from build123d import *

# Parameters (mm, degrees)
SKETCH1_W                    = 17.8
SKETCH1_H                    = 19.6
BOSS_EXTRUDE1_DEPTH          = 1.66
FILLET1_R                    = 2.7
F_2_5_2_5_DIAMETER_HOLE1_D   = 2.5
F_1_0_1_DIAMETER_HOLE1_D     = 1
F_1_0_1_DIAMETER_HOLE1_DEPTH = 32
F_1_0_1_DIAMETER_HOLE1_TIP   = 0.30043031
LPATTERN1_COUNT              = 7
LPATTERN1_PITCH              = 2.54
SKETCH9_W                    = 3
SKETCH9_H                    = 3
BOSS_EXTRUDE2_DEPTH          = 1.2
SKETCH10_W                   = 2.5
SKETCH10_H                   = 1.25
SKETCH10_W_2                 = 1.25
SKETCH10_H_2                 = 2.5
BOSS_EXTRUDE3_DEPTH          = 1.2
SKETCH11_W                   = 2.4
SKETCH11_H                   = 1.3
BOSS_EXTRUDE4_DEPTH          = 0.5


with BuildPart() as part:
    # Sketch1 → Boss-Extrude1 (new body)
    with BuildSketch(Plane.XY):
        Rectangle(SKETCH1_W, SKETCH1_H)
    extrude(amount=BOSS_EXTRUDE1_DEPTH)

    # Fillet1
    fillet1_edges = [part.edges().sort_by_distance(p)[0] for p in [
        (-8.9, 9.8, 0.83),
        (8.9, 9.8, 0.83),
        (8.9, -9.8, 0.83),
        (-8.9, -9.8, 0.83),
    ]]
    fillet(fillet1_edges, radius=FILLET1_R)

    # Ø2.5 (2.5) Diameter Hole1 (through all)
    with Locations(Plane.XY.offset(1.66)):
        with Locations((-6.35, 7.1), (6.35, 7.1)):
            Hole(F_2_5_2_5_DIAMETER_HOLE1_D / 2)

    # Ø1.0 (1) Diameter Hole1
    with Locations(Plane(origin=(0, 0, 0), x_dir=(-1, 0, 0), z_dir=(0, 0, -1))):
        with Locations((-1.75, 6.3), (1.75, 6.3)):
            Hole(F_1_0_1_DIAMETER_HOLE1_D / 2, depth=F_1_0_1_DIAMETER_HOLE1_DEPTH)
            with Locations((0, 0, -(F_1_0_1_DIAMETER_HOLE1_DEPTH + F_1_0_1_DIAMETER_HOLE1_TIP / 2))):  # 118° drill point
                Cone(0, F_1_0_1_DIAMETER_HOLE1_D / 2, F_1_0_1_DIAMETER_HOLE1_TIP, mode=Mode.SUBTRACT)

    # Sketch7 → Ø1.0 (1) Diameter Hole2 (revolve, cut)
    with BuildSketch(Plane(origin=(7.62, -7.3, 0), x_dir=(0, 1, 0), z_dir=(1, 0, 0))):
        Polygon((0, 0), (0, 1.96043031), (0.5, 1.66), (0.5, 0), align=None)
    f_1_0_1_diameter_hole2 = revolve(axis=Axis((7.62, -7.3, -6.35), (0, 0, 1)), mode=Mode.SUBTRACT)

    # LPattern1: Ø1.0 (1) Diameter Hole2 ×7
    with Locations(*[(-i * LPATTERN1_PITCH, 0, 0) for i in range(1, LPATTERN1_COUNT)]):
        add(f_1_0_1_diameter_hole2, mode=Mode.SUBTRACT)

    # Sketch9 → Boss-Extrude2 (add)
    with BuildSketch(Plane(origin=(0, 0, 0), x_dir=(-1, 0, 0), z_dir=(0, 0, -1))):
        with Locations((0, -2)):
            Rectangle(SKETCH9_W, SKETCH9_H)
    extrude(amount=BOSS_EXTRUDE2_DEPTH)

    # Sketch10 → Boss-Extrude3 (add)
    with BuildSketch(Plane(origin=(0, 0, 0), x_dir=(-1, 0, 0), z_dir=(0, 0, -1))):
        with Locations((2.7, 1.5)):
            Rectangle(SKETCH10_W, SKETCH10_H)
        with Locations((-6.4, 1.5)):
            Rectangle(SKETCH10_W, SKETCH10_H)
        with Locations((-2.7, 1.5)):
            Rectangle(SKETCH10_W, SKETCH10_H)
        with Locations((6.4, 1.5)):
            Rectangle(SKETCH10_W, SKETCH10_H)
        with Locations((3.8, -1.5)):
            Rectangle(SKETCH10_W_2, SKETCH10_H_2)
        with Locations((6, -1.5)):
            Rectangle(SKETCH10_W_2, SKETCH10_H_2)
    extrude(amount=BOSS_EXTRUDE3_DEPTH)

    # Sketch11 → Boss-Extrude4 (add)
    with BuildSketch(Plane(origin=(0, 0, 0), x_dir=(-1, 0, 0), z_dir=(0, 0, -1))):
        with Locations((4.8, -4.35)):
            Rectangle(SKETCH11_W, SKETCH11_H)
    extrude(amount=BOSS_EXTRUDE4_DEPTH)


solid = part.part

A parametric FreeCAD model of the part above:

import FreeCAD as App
import Part
import Sketcher
Q = App.Units.Quantity


def edges_at(feature, points):
    """Names of the edges that pass closest to the given points."""
    edges = feature.Shape.Edges
    near = lambda p: min(range(len(edges)), key=lambda i: edges[i].distToShape(Part.Vertex(*p))[0])
    return sorted({f"Edge{near(p) + 1}" for p in points})


def add_polygon(sketch, points):
    """Adds a closed chain of lines whose ends are joined by coincident constraints."""
    first, n = sketch.GeometryCount, len(points)
    for a, b in zip(points, points[1:] + points[:1]):
        sketch.addGeometry(Part.LineSegment(App.Vector(*a, 0), App.Vector(*b, 0)), False)
    for i in range(n):
        sketch.addConstraint(Sketcher.Constraint("Coincident", first + i, 2, first + (i + 1) % n, 1))

doc = App.newDocument("Part")
params = doc.addObject("Spreadsheet::Sheet", "Params")
for row, (alias, value) in enumerate([
    ("sketch1_width", "17.8 mm"),
    ("sketch1_height", "19.6 mm"),
    ("pad1_length", "1.66 mm"),
    ("fillet_radius", "2.7 mm"),
    ("sketch2_diameter", "2.5 mm"),
    ("hole_diameter", "2.5 mm"),
    ("sketch3_diameter", "1 mm"),
    ("hole2_diameter", "1 mm"),
    ("hole2_depth", "32 mm"),
    ("sketch4_width", "0.5 mm"),
    ("sketch4_height", "1.66 mm"),
    ("groove_angle", "360 deg"),
    ("linearpattern_pitch", "2.54 mm"),
    ("sketch5_width", "3 mm"),
    ("pad2_length", "1.2 mm"),
    ("sketch6_width", "2.5 mm"),
    ("sketch6_width2", "1.25 mm"),
    ("pad3_length", "1.2 mm"),
    ("sketch7_width", "2.4 mm"),
    ("sketch7_height", "1.3 mm"),
    ("pad4_length", "0.5 mm"),
], start=1):
    params.set(f"A{row}", alias)
    params.set(f"B{row}", "=" + value)
    params.setAlias(f"B{row}", alias)

body = doc.addObject("PartDesign::Body", "Body")

# Sketch on XY plane
sketch1 = body.newObject("Sketcher::SketchObject", "Sketch")
sketch1.AttachmentSupport = (doc.getObject("XY_Plane"), [""])
sketch1.MapMode = "FlatFace"
add_polygon(sketch1, [(-9, 10), (-9, -10), (9, -10), (9, 10)])  # lines 0-3
sketch1.addConstraint(Sketcher.Constraint("Vertical", 0))
sketch1.addConstraint(Sketcher.Constraint("Horizontal", 1))
sketch1.addConstraint(Sketcher.Constraint("Vertical", 2))
sketch1.addConstraint(Sketcher.Constraint("Horizontal", 3))
sketch1.addConstraint(Sketcher.Constraint("Symmetric", 0, 2, 2, 2, -1, 1))
sketch1.addConstraint(Sketcher.Constraint("DistanceX", 1, 1, 1, 2, Q("17.8 mm")))
sketch1.addConstraint(Sketcher.Constraint("DistanceY", 0, 2, 0, 1, Q("19.6 mm")))
sketch1.setExpression("Constraints[9]", "Params.sketch1_width")
sketch1.setExpression("Constraints[10]", "Params.sketch1_height")
pad1 = body.newObject("PartDesign::Pad", "Pad")
pad1.Profile = sketch1
pad1.setExpression("Length", "Params.pad1_length")
doc.recompute()

fillet = body.newObject("PartDesign::Fillet", "Fillet")
fillet.Base = (pad1, edges_at(pad1, [
    (-8.9, 9.8, 0.83),
    (8.9, 9.8, 0.83),
    (8.9, -9.8, 0.83),
    (-8.9, -9.8, 0.83),
]))
fillet.setExpression("Radius", "Params.fillet_radius")

# Sketch on XY plane
sketch2 = body.newObject("Sketcher::SketchObject", "Sketch001")
sketch2.AttachmentSupport = (doc.getObject("XY_Plane"), [""])
sketch2.MapMode = "FlatFace"
sketch2.AttachmentOffset = App.Placement(App.Vector(0, 0, 1.66), App.Rotation())
sketch2.addGeometry(Part.Circle(App.Vector(-6.3, 7.1, 0), App.Vector(0, 0, 1), 1.2), False)
sketch2.addGeometry(Part.Circle(App.Vector(6.3, 7.1, 0), App.Vector(0, 0, 1), 1.2), False)
sketch2.addConstraint(Sketcher.Constraint("Equal", 0, 1))
sketch2.addConstraint(Sketcher.Constraint("Symmetric", 0, 3, 1, 3, -2))
sketch2.addConstraint(Sketcher.Constraint("Diameter", 0, Q("2.5 mm")))
sketch2.addConstraint(Sketcher.Constraint("DistanceY", -1, 1, 0, 3, Q("7.1 mm")))
sketch2.addConstraint(Sketcher.Constraint("DistanceX", 0, 3, 1, 3, Q("12.7 mm")))
sketch2.setExpression("Constraints[2]", "Params.sketch2_diameter")
doc.recompute()
hole = body.newObject("PartDesign::Hole", "Hole")
hole.Profile = sketch2
hole.ThreadType = "None"
hole.setExpression("Diameter", "Params.hole_diameter")
hole.DepthType = "ThroughAll"

# Sketch on XY plane
sketch3 = body.newObject("Sketcher::SketchObject", "Sketch002")
sketch3.AttachmentSupport = (doc.getObject("XY_Plane"), [""])
sketch3.MapMode = "FlatFace"
sketch3.addGeometry(Part.Circle(App.Vector(1.8, 6.3, 0), App.Vector(0, 0, 1), 0.5), False)
sketch3.addGeometry(Part.Circle(App.Vector(-1.8, 6.3, 0), App.Vector(0, 0, 1), 0.5), False)
sketch3.addConstraint(Sketcher.Constraint("Equal", 0, 1))
sketch3.addConstraint(Sketcher.Constraint("Symmetric", 0, 3, 1, 3, -2))
sketch3.addConstraint(Sketcher.Constraint("Diameter", 0, Q("1 mm")))
sketch3.addConstraint(Sketcher.Constraint("DistanceY", -1, 1, 0, 3, Q("6.3 mm")))
sketch3.addConstraint(Sketcher.Constraint("DistanceX", 1, 3, 0, 3, Q("3.5 mm")))
sketch3.setExpression("Constraints[2]", "Params.sketch3_diameter")
doc.recompute()
hole2 = body.newObject("PartDesign::Hole", "Hole001")
hole2.Profile = sketch3
hole2.ThreadType = "None"
hole2.setExpression("Diameter", "Params.hole2_diameter")
hole2.DepthType = "Dimension"
hole2.setExpression("Depth", "Params.hole2_depth")
hole2.DrillPoint = "Angled"
hole2.DrillPointAngle = 118
hole2.Reversed = True

# Sketch on YZ plane
sketch4 = body.newObject("Sketcher::SketchObject", "Sketch003")
sketch4.AttachmentSupport = (doc.getObject("YZ_Plane"), [""])
sketch4.MapMode = "FlatFace"
sketch4.AttachmentOffset = App.Placement(App.Vector(0, 0, 7.62), App.Rotation())
add_polygon(sketch4, [(-7.3, 2), (-7.3, 0), (-6.8, 0), (-6.8, 1.7)])  # lines 0-3
sketch4.addGeometry(Part.LineSegment(App.Vector(-7.3, 0, 0), App.Vector(-7.3, 2, 0)), True)  # axis
sketch4.addConstraint(Sketcher.Constraint("Vertical", 0))
sketch4.addConstraint(Sketcher.Constraint("Horizontal", 1))
sketch4.addConstraint(Sketcher.Constraint("Vertical", 2))
sketch4.addConstraint(Sketcher.Constraint("Vertical", 4))
sketch4.addConstraint(Sketcher.Constraint("Coincident", 4, 1, 0, 2))
sketch4.addConstraint(Sketcher.Constraint("PointOnObject", 0, 2, -1))
sketch4.addConstraint(Sketcher.Constraint("Equal", 0, 4))
sketch4.addConstraint(Sketcher.Constraint("Angle", 3, Q("149 deg")))
sketch4.addConstraint(Sketcher.Constraint("DistanceX", 1, 1, 1, 2, Q("0.5 mm")))
sketch4.addConstraint(Sketcher.Constraint("DistanceY", 2, 1, 2, 2, Q("1.66 mm")))
sketch4.addConstraint(Sketcher.Constraint("DistanceX", 0, 2, -1, 1, Q("7.3 mm")))
sketch4.setExpression("Constraints[12]", "Params.sketch4_width")
sketch4.setExpression("Constraints[13]", "Params.sketch4_height")
groove = body.newObject("PartDesign::Groove", "Groove")
groove.Profile = sketch4
groove.ReferenceAxis = (sketch4, ["Axis0"])
groove.setExpression("Angle", "Params.groove_angle")
doc.recompute()

linearpattern = body.newObject("PartDesign::LinearPattern", "LinearPattern")
linearpattern.Originals = [groove]
linearpattern.Direction = (doc.getObject("X_Axis"), [""])
linearpattern.Mode = "offset"
linearpattern.setExpression("Offset", "Params.linearpattern_pitch")
linearpattern.Occurrences = 7
linearpattern.Reversed = True
body.Tip = linearpattern

# Sketch on XY plane
sketch5 = body.newObject("Sketcher::SketchObject", "Sketch004")
sketch5.AttachmentSupport = (doc.getObject("XY_Plane"), [""])
sketch5.MapMode = "FlatFace"
add_polygon(sketch5, [(1.5, -0.5), (1.5, -3.5), (-1.5, -3.5), (-1.5, -0.5)])  # lines 0-3
sketch5.addConstraint(Sketcher.Constraint("Vertical", 0))
sketch5.addConstraint(Sketcher.Constraint("Horizontal", 1))
sketch5.addConstraint(Sketcher.Constraint("Vertical", 2))
sketch5.addConstraint(Sketcher.Constraint("Horizontal", 3))
sketch5.addConstraint(Sketcher.Constraint("Equal", 3, 0))
sketch5.addConstraint(Sketcher.Constraint("DistanceX", 1, 2, 1, 1, Q("3 mm")))
sketch5.addConstraint(Sketcher.Constraint("DistanceX", -1, 1, 0, 2, Q("1.5 mm")))
sketch5.addConstraint(Sketcher.Constraint("DistanceY", 0, 2, -1, 1, Q("3.5 mm")))
sketch5.setExpression("Constraints[9]", "Params.sketch5_width")
pad2 = body.newObject("PartDesign::Pad", "Pad001")
pad2.Profile = sketch5
pad2.setExpression("Length", "Params.pad2_length")
pad2.Reversed = True

# Sketch on XY plane
sketch6 = body.newObject("Sketcher::SketchObject", "Sketch005")
sketch6.AttachmentSupport = (doc.getObject("XY_Plane"), [""])
sketch6.MapMode = "FlatFace"
add_polygon(sketch6, [(-1.4, 2.1), (-1.4, 0.9), (-4, 0.9), (-4, 2.1)])  # lines 0-3
add_polygon(sketch6, [(7.7, 2.1), (7.7, 0.9), (5.2, 0.9), (5.2, 2.1)])  # lines 4-7
add_polygon(sketch6, [(4, 2.1), (4, 0.9), (1.4, 0.9), (1.4, 2.1)])  # lines 8-11
add_polygon(sketch6, [(-5.2, 2.1), (-5.2, 0.9), (-7.7, 0.9), (-7.7, 2.1)])  # lines 12-15
add_polygon(sketch6, [(-3.2, -0.2), (-3.2, -2.8), (-4.4, -2.8), (-4.4, -0.2)])  # lines 16-19
add_polygon(sketch6, [(-5.4, -0.2), (-5.4, -2.8), (-6.6, -2.8), (-6.6, -0.2)])  # lines 20-23
sketch6.addConstraint(Sketcher.Constraint("Vertical", 0))
sketch6.addConstraint(Sketcher.Constraint("Horizontal", 1))
sketch6.addConstraint(Sketcher.Constraint("Vertical", 2))
sketch6.addConstraint(Sketcher.Constraint("Horizontal", 3))
sketch6.addConstraint(Sketcher.Constraint("Vertical", 4))
sketch6.addConstraint(Sketcher.Constraint("Horizontal", 5))
sketch6.addConstraint(Sketcher.Constraint("Vertical", 6))
sketch6.addConstraint(Sketcher.Constraint("Horizontal", 7))
sketch6.addConstraint(Sketcher.Constraint("Vertical", 8))
sketch6.addConstraint(Sketcher.Constraint("Horizontal", 9))
sketch6.addConstraint(Sketcher.Constraint("Vertical", 10))
sketch6.addConstraint(Sketcher.Constraint("Horizontal", 11))
sketch6.addConstraint(Sketcher.Constraint("Vertical", 12))
sketch6.addConstraint(Sketcher.Constraint("Horizontal", 13))
sketch6.addConstraint(Sketcher.Constraint("Vertical", 14))
sketch6.addConstraint(Sketcher.Constraint("Horizontal", 15))
sketch6.addConstraint(Sketcher.Constraint("Vertical", 16))
sketch6.addConstraint(Sketcher.Constraint("Horizontal", 17))
sketch6.addConstraint(Sketcher.Constraint("Vertical", 18))
sketch6.addConstraint(Sketcher.Constraint("Horizontal", 19))
sketch6.addConstraint(Sketcher.Constraint("Vertical", 20))
sketch6.addConstraint(Sketcher.Constraint("Horizontal", 21))
sketch6.addConstraint(Sketcher.Constraint("Vertical", 22))
sketch6.addConstraint(Sketcher.Constraint("Horizontal", 23))
sketch6.addConstraint(Sketcher.Constraint("Symmetric", 1, 2, 8, 2, -2))
sketch6.addConstraint(Sketcher.Constraint("Symmetric", 3, 2, 10, 2, -2))
sketch6.addConstraint(Sketcher.Constraint("Symmetric", 5, 2, 12, 2, -2))
sketch6.addConstraint(Sketcher.Constraint("Symmetric", 7, 2, 14, 2, -2))
sketch6.addConstraint(Sketcher.Constraint("Horizontal", 1, 2, 4, 2))
sketch6.addConstraint(Sketcher.Constraint("Horizontal", 3, 2, 6, 2))
sketch6.addConstraint(Sketcher.Constraint("Horizontal", 17, 2, 20, 2))
sketch6.addConstraint(Sketcher.Constraint("Horizontal", 19, 2, 22, 2))
sketch6.addConstraint(Sketcher.Constraint("Equal", 3, 5))
sketch6.addConstraint(Sketcher.Constraint("Equal", 19, 21))
sketch6.addConstraint(Sketcher.Constraint("Equal", 23, 0))
sketch6.addConstraint(Sketcher.Constraint("Equal", 15, 16))
sketch6.addConstraint(Sketcher.Constraint("DistanceX", 1, 2, 1, 1, Q("2.5 mm")))
sketch6.addConstraint(Sketcher.Constraint("DistanceX", 17, 2, 17, 1, Q("1.25 mm")))
sketch6.addConstraint(Sketcher.Constraint("DistanceX", 0, 2, 4, 2, Q("9.1 mm")))
sketch6.addConstraint(Sketcher.Constraint("DistanceX", 8, 2, 5, 2, Q("1.2 mm")))
sketch6.addConstraint(Sketcher.Constraint("DistanceX", 20, 2, 16, 2, Q("2.2 mm")))
sketch6.addConstraint(Sketcher.Constraint("DistanceY", 16, 2, -1, 1, Q("2.75 mm")))
sketch6.addConstraint(Sketcher.Constraint("DistanceY", -1, 1, 0, 2, Q("0.875 mm")))
sketch6.addConstraint(Sketcher.Constraint("DistanceX", 16, 2, -1, 1, Q("3.175 mm")))
sketch6.setExpression("Constraints[60]", "Params.sketch6_width")
sketch6.setExpression("Constraints[61]", "Params.sketch6_width2")
pad3 = body.newObject("PartDesign::Pad", "Pad002")
pad3.Profile = sketch6
pad3.setExpression("Length", "Params.pad3_length")
pad3.Reversed = True

# Sketch on XY plane
sketch7 = body.newObject("Sketcher::SketchObject", "Sketch006")
sketch7.AttachmentSupport = (doc.getObject("XY_Plane"), [""])
sketch7.MapMode = "FlatFace"
add_polygon(sketch7, [(-3.6, -3.7), (-3.6, -5), (-6, -5), (-6, -3.7)])  # lines 0-3
sketch7.addConstraint(Sketcher.Constraint("Vertical", 0))
sketch7.addConstraint(Sketcher.Constraint("Horizontal", 1))
sketch7.addConstraint(Sketcher.Constraint("Vertical", 2))
sketch7.addConstraint(Sketcher.Constraint("Horizontal", 3))
sketch7.addConstraint(Sketcher.Constraint("DistanceX", 1, 2, 1, 1, Q("2.4 mm")))
sketch7.addConstraint(Sketcher.Constraint("DistanceY", 0, 2, 0, 1, Q("1.3 mm")))
sketch7.addConstraint(Sketcher.Constraint("DistanceY", 0, 2, -1, 1, Q("5 mm")))
sketch7.addConstraint(Sketcher.Constraint("DistanceX", 1, 2, -1, 1, Q("6 mm")))
sketch7.setExpression("Constraints[8]", "Params.sketch7_width")
sketch7.setExpression("Constraints[9]", "Params.sketch7_height")
pad4 = body.newObject("PartDesign::Pad", "Pad003")
pad4.Profile = sketch7
pad4.setExpression("Length", "Params.pad4_length")
pad4.Reversed = True

doc.recompute()
